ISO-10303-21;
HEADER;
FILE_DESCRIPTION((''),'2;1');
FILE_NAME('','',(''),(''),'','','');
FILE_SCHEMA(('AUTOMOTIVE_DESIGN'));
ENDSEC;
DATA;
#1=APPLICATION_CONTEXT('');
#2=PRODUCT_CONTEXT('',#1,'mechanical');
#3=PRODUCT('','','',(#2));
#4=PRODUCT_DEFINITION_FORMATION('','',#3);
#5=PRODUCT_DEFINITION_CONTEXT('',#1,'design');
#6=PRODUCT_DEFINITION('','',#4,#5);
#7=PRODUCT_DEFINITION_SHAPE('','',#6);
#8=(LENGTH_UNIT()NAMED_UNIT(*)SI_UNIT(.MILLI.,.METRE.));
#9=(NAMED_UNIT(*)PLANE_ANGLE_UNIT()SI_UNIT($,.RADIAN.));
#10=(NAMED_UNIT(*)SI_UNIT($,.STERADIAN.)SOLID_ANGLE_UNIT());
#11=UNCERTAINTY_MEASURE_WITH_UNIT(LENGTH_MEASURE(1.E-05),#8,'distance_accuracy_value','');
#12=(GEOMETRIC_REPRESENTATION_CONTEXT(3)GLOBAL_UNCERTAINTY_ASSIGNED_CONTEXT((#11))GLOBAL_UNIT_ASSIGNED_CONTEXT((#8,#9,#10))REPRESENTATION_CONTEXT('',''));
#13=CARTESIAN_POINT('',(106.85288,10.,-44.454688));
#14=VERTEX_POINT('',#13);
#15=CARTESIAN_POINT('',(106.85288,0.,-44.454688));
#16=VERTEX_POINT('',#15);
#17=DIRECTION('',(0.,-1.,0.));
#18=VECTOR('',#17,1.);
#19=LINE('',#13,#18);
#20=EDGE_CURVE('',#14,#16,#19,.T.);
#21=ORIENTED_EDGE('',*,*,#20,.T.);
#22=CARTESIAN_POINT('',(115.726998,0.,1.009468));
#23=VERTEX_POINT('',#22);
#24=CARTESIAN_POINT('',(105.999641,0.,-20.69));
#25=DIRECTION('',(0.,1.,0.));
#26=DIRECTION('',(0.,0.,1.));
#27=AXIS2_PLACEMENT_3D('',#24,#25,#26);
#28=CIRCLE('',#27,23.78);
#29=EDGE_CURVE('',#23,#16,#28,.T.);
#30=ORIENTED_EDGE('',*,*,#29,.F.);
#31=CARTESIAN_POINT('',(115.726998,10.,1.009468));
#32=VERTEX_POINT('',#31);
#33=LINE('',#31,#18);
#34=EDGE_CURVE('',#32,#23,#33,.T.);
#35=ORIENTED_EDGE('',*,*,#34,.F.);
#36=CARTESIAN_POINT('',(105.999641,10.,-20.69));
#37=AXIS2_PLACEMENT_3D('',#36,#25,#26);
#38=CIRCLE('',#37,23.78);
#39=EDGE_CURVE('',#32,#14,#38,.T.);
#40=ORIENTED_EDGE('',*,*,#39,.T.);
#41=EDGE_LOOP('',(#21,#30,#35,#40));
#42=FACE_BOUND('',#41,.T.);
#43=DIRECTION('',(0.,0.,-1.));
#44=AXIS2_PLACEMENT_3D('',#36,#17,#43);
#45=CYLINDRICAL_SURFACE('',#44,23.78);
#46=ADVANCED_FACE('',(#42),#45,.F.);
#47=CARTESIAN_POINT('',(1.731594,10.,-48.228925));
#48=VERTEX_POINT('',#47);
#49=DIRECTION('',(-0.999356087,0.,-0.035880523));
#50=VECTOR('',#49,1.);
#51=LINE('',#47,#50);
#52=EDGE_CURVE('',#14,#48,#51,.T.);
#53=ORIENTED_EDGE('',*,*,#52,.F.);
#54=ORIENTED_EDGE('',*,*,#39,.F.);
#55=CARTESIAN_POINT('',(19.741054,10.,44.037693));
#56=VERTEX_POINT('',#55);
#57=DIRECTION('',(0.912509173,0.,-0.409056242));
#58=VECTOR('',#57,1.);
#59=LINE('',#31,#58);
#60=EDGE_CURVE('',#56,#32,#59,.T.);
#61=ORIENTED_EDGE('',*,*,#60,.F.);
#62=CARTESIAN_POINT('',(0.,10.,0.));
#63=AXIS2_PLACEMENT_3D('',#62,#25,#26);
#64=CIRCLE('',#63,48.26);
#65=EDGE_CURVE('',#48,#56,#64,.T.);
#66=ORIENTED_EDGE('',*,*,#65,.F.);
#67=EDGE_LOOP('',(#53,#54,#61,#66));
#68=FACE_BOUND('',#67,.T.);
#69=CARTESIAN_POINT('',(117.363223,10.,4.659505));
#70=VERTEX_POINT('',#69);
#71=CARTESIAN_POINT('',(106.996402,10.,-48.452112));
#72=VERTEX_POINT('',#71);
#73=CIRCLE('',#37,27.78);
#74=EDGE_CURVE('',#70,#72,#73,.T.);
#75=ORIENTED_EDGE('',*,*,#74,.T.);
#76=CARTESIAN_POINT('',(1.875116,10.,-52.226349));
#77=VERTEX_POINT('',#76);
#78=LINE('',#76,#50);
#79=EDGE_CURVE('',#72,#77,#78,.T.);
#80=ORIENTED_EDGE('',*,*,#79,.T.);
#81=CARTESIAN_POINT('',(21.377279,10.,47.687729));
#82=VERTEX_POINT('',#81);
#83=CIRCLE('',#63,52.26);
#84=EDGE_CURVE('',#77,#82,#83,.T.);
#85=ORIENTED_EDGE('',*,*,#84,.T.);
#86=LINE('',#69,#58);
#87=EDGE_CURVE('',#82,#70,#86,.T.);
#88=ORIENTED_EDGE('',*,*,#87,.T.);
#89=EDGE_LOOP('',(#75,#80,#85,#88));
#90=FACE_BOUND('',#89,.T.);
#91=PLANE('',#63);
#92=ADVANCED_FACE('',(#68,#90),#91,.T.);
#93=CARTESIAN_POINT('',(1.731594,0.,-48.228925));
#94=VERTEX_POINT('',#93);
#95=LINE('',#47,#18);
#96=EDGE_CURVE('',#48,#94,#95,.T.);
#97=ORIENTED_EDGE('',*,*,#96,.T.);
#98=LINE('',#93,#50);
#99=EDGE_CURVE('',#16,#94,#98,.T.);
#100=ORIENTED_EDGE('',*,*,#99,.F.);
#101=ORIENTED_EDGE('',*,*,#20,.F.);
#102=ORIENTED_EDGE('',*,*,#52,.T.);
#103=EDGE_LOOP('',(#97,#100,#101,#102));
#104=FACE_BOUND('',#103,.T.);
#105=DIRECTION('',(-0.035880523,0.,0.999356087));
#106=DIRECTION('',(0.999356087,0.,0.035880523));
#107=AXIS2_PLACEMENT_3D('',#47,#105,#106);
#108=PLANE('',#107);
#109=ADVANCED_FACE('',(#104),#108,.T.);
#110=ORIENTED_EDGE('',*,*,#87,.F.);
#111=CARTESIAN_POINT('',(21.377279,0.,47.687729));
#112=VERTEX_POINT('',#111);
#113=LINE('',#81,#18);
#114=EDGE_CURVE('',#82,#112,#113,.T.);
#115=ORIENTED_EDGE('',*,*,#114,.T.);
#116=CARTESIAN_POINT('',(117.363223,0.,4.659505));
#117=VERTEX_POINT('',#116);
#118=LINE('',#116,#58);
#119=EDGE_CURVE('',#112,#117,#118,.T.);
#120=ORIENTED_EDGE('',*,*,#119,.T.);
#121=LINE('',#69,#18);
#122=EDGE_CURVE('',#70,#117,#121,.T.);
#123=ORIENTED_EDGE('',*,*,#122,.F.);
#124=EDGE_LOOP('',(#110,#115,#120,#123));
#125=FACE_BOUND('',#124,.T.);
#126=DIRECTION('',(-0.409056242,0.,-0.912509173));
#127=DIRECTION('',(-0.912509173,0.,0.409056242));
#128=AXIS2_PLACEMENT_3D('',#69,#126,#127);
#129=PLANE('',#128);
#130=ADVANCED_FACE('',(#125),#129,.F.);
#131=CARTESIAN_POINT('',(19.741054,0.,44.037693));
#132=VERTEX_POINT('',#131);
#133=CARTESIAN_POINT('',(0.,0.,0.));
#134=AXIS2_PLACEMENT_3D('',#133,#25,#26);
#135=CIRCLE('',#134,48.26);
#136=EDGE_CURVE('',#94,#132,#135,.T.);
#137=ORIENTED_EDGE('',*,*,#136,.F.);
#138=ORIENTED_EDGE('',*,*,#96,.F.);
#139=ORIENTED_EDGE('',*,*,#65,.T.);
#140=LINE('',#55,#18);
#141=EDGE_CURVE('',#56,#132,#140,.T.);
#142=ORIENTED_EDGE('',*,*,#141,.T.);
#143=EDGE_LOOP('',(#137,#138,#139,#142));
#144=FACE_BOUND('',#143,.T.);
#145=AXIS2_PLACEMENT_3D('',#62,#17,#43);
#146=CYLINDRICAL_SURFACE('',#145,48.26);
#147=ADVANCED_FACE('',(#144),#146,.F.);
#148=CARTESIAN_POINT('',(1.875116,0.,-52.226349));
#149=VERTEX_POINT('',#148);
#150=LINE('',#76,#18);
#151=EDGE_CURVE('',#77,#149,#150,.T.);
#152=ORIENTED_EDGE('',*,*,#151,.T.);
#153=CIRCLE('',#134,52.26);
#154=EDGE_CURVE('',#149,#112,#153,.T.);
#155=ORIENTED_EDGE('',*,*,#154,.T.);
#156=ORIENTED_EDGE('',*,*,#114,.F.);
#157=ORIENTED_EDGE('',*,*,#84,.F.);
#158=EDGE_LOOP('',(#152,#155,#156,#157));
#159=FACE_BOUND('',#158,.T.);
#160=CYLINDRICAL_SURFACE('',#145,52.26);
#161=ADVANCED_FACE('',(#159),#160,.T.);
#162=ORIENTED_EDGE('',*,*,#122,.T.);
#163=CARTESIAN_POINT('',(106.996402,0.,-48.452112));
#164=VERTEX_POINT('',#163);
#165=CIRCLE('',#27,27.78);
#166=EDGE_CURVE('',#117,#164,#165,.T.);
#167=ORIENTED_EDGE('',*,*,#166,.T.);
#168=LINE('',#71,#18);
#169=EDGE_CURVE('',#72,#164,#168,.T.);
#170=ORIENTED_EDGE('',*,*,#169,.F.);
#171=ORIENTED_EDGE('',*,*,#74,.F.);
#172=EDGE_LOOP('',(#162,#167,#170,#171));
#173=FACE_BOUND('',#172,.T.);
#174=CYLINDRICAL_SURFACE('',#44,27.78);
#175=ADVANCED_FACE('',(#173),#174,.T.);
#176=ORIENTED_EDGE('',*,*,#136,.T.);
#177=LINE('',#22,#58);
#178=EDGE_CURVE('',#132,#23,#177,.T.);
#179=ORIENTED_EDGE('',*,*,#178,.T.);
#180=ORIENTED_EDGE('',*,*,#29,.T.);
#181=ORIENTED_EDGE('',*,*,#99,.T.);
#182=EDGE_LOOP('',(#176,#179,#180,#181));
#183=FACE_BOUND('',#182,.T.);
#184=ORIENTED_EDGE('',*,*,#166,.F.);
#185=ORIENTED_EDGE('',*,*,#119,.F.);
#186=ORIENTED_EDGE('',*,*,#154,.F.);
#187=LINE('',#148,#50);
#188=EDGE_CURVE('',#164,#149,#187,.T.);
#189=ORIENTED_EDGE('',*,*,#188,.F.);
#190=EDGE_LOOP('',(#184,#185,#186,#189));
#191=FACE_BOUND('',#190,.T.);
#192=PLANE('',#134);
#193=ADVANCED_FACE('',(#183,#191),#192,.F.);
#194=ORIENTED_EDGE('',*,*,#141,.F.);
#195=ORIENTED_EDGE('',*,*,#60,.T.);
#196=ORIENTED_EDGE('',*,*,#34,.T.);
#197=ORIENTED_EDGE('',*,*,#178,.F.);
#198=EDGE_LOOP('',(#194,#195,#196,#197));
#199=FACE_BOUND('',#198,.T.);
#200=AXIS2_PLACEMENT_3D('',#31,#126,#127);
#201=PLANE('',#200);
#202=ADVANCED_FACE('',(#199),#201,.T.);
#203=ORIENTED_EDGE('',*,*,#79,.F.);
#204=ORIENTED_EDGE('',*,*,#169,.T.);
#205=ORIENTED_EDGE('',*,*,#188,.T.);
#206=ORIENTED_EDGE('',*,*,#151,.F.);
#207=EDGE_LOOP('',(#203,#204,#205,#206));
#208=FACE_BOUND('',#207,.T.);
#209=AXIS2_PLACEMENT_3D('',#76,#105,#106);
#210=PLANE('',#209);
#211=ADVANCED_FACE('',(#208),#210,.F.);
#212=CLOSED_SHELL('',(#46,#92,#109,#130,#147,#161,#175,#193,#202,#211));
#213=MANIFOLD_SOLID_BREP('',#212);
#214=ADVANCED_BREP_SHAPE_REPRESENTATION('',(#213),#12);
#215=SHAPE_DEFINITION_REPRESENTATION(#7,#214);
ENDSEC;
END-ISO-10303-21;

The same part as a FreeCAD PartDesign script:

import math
import FreeCAD as App
import Part
import Sketcher
Q = App.Units.Quantity

doc = App.newDocument("Part")
body = doc.addObject("PartDesign::Body", "Body")

# Sketch on XZ plane
sketch1 = body.newObject("Sketcher::SketchObject", "Sketch")
sketch1.AttachmentSupport = (doc.getObject("XZ_Plane"), [""])
sketch1.MapMode = "FlatFace"
sketch1.addGeometry(Part.LineSegment(App.Vector(107, -48, 0), App.Vector(2, -52, 0)), False)
sketch1.addGeometry(Part.ArcOfCircle(Part.Circle(App.Vector(0, 0, 0), App.Vector(0, 0, 1), 52), math.radians(66), math.radians(272)), False)
sketch1.addGeometry(Part.LineSegment(App.Vector(21, 48, 0), App.Vector(117, 5, 0)), False)
sketch1.addGeometry(Part.ArcOfCircle(Part.Circle(App.Vector(106, -21, 0), App.Vector(0, 0, 1), 28), math.radians(-88), math.radians(66)), False)
sketch1.addGeometry(Part.LineSegment(App.Vector(2, -48, 0), App.Vector(107, -44, 0)), False)
sketch1.addGeometry(Part.ArcOfCircle(Part.Circle(App.Vector(106, -21, 0), App.Vector(0, 0, 1), 24), math.radians(-88), math.radians(66)), False)
sketch1.addGeometry(Part.LineSegment(App.Vector(116, 1, 0), App.Vector(20, 44, 0)), False)
sketch1.addGeometry(Part.ArcOfCircle(Part.Circle(App.Vector(0, 0, 0), App.Vector(0, 0, 1), 48), math.radians(66), math.radians(272)), False)
sketch1.addConstraint(Sketcher.Constraint("Tangent", 0, 2, 1, 2))
sketch1.addConstraint(Sketcher.Constraint("Tangent", 1, 1, 2, 1))
sketch1.addConstraint(Sketcher.Constraint("Tangent", 2, 2, 3, 2))
sketch1.addConstraint(Sketcher.Constraint("Tangent", 3, 1, 0, 1))
sketch1.addConstraint(Sketcher.Constraint("Tangent", 4, 2, 5, 1))
sketch1.addConstraint(Sketcher.Constraint("Tangent", 5, 2, 6, 1))
sketch1.addConstraint(Sketcher.Constraint("Tangent", 6, 2, 7, 1))
sketch1.addConstraint(Sketcher.Constraint("Tangent", 7, 2, 4, 1))
sketch1.addConstraint(Sketcher.Constraint("Coincident", 1, 3, -1, 1))
sketch1.addConstraint(Sketcher.Constraint("Coincident", 7, 3, -1, 1))
sketch1.addConstraint(Sketcher.Constraint("Coincident", 5, 3, 3, 3))
sketch1.addConstraint(Sketcher.Constraint("Parallel", 0, 4))
sketch1.addConstraint(Sketcher.Constraint("Radius", 1, Q("52.26 mm")))
sketch1.addConstraint(Sketcher.Constraint("Radius", 3, Q("27.78 mm")))
sketch1.addConstraint(Sketcher.Constraint("Radius", 5, Q("23.78 mm")))
sketch1.addConstraint(Sketcher.Constraint("DistanceY", 3, 3, -1, 1, Q("20.69 mm")))
sketch1.addConstraint(Sketcher.Constraint("DistanceX", -1, 1, 5, 2, Q("115.726998 mm")))
pad1 = body.newObject("PartDesign::Pad", "Pad")
pad1.Profile = sketch1
pad1.Length = 10
pad1.Reversed = True

doc.recompute()
